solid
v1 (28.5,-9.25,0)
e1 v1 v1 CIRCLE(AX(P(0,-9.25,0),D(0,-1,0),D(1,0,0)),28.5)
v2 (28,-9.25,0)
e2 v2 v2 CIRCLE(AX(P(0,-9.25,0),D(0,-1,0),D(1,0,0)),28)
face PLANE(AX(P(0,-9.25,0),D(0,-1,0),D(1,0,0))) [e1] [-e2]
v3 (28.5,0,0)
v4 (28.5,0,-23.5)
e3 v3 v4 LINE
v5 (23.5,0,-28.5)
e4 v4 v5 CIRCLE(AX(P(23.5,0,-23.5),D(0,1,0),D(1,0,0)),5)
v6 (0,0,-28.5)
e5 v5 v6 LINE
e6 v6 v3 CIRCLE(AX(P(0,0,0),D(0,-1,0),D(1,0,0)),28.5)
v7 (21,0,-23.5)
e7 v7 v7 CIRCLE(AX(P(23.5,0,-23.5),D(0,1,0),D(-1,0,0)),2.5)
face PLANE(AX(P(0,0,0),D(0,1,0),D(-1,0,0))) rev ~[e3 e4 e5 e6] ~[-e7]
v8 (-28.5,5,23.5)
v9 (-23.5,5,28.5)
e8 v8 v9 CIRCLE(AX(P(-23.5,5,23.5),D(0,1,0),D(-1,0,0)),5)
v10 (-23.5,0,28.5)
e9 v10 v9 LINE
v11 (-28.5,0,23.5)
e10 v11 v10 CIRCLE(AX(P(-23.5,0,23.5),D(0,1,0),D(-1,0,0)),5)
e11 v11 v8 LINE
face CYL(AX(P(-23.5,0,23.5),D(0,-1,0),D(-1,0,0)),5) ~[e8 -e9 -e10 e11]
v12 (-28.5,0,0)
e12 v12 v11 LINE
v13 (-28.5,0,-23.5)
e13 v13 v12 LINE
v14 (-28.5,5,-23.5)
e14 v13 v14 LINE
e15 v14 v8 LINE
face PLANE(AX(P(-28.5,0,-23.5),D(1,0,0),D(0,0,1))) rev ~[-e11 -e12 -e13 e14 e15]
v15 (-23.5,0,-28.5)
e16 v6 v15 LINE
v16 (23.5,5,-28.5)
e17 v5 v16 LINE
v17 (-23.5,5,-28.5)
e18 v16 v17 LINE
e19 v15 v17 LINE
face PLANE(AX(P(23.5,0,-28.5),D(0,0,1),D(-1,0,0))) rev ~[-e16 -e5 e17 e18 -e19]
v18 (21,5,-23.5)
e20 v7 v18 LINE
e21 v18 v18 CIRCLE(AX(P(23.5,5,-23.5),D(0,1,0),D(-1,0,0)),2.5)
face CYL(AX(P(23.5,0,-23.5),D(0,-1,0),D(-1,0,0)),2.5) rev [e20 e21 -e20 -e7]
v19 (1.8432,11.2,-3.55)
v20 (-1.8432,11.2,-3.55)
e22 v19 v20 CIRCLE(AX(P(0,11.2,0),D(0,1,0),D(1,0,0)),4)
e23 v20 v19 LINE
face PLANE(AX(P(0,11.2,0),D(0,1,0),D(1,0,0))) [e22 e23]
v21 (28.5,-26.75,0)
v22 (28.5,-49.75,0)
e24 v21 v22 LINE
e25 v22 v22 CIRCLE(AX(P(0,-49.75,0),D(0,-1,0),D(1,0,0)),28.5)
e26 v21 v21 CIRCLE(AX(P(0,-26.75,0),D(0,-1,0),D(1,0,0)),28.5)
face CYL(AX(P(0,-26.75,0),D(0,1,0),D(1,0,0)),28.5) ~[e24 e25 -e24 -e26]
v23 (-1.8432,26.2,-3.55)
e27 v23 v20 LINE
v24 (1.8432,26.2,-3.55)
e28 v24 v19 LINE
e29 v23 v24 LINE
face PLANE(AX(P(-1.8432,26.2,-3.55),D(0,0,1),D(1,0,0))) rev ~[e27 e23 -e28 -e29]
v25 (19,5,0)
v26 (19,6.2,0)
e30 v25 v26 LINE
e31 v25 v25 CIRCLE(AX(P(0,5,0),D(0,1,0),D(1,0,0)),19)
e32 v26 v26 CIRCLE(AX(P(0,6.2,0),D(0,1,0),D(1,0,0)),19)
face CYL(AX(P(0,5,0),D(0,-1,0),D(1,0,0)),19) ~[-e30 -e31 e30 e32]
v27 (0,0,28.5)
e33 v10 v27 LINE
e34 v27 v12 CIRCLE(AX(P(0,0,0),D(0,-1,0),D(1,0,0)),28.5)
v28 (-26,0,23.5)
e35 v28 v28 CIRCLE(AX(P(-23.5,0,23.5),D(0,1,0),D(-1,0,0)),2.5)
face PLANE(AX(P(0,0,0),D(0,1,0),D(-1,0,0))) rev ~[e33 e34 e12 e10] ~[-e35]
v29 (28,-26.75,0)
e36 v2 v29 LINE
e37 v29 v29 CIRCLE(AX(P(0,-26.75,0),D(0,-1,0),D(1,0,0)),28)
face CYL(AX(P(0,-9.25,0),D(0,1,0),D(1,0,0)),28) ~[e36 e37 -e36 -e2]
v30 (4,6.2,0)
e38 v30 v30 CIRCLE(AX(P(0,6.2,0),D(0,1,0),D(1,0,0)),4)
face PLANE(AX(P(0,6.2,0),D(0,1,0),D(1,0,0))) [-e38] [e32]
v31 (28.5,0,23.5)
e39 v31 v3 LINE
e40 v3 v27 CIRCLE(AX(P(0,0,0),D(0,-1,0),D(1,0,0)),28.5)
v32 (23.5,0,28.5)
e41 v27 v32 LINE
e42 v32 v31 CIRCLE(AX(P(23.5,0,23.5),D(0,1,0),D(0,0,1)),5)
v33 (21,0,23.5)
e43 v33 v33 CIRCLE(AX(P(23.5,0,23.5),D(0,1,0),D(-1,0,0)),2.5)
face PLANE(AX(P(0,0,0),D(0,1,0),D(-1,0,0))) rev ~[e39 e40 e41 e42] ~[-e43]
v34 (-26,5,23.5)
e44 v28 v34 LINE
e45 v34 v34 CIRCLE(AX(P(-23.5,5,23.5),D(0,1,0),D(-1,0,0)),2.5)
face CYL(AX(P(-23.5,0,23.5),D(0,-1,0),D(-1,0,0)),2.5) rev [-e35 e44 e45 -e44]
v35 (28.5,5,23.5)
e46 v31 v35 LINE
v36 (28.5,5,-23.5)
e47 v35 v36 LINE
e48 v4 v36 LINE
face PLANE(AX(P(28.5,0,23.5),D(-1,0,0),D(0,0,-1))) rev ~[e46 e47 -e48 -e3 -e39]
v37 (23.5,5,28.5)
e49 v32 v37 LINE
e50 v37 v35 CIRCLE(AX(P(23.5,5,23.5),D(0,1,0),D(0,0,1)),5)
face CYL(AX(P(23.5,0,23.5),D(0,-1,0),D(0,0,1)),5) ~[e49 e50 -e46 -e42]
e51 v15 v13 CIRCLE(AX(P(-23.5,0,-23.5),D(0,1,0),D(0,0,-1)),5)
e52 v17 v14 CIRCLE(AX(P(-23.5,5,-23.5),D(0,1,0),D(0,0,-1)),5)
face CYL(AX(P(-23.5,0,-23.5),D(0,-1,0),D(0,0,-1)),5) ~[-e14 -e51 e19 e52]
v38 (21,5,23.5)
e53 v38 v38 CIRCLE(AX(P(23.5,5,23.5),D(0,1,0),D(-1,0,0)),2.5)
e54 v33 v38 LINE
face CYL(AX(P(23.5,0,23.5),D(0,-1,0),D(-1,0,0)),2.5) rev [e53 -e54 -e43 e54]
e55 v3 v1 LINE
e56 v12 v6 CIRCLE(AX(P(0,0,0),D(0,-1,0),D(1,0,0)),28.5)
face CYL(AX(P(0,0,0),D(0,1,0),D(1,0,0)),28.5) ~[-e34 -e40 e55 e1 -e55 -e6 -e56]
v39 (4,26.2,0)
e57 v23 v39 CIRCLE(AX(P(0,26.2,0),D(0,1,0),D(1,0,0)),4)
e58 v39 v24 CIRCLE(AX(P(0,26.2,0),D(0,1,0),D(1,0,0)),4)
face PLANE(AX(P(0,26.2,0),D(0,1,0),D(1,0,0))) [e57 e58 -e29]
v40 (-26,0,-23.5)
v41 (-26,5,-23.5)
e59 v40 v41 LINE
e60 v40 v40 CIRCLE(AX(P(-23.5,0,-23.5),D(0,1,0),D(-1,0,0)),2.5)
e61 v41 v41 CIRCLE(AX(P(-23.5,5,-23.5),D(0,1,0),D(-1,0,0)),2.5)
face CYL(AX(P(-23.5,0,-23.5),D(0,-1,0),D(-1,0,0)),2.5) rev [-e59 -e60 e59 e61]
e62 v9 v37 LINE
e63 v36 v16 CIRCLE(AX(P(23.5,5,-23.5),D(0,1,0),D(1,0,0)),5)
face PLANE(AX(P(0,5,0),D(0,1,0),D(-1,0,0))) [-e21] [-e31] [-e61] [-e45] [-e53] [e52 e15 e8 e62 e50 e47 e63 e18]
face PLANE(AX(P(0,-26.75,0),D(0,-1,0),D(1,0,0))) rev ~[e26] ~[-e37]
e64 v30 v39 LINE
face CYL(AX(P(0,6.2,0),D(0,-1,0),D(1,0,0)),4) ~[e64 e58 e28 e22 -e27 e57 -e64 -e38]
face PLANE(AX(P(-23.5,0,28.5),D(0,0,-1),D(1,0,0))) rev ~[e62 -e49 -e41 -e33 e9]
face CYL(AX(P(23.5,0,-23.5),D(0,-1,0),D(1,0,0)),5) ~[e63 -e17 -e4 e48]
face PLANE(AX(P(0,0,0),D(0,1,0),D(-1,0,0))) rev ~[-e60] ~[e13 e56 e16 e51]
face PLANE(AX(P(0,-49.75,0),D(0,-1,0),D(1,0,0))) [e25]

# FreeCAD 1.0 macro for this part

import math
import FreeCAD as App
import Part
import Sketcher
from FreeCAD import Vector

doc = App.newDocument("Part")
params = doc.addObject("Spreadsheet::Sheet", "Params")
for row, (alias, value) in enumerate([
    ("sketch1_diameter", "5 mm"),
    ("sketch1_radius", "5 mm"),
    ("sketch1_width", "47 mm"),
    ("pad1_length", "5 mm"),
    ("sketch2_diameter", "38 mm"),
    ("pad2_length", "1.2 mm"),
    ("sketch3_diameter", "8 mm"),
    ("pad3_length", "20 mm"),
    ("sketch4_radius", "4 mm"),
    ("pocket1_length", "15 mm"),
    ("sketch5_diameter", "57 mm"),
    ("pad4_length", "9.25 mm"),
    ("sketch6_diameter", "56 mm"),
    ("pad5_length", "17.5 mm"),
    ("sketch7_diameter", "57 mm"),
    ("pad6_length", "23 mm"),
], start=1):
    params.set(f"A{row}", alias)
    params.set(f"B{row}", "=" + value)
    params.setAlias(f"B{row}", alias)

body = doc.addObject("PartDesign::Body", "Body")

# Sketch on XZ plane
sketch1 = body.newObject("Sketcher::SketchObject", "Sketch")
sketch1.AttachmentSupport = (doc.getObject("XZ_Plane"), [""])
sketch1.MapMode = "FlatFace"
sketch1.addGeometry([
    Part.ArcOfCircle(Part.Circle(Vector(-23.5, 23.5, 0), Vector(0, 0, 1), 5), math.radians(90), math.radians(180)),  # 0
    Part.LineSegment(Vector(-23.5, 28.5, 0), Vector(23.5, 28.5, 0)),  # 1
    Part.ArcOfCircle(Part.Circle(Vector(23.5, 23.5, 0), Vector(0, 0, 1), 5), math.radians(0), math.radians(90)),  # 2
    Part.LineSegment(Vector(28.5, 23.5, 0), Vector(28.5, -23.5, 0)),  # 3
    Part.ArcOfCircle(Part.Circle(Vector(23.5, -23.5, 0), Vector(0, 0, 1), 5), math.radians(-90), math.radians(0)),  # 4
    Part.LineSegment(Vector(23.5, -28.5, 0), Vector(-23.5, -28.5, 0)),  # 5
    Part.ArcOfCircle(Part.Circle(Vector(-23.5, -23.5, 0), Vector(0, 0, 1), 5), math.radians(180), math.radians(270)),  # 6
    Part.LineSegment(Vector(-28.5, -23.5, 0), Vector(-28.5, 23.5, 0)),  # 7
    Part.Circle(Vector(23.5, -23.5, 0), Vector(0, 0, 1), 2.5),  # 8
    Part.Circle(Vector(-23.5, -23.5, 0), Vector(0, 0, 1), 2.5),  # 9
    Part.Circle(Vector(23.5, 23.5, 0), Vector(0, 0, 1), 2.5),  # 10
    Part.Circle(Vector(-23.5, 23.5, 0), Vector(0, 0, 1), 2.5),  # 11
], False)
sketch1.addConstraint([
    Sketcher.Constraint("Tangent", 0, 1, 1, 1),
    Sketcher.Constraint("Tangent", 1, 2, 2, 2),
    Sketcher.Constraint("Tangent", 2, 1, 3, 1),
    Sketcher.Constraint("Tangent", 3, 2, 4, 2),
    Sketcher.Constraint("Tangent", 4, 1, 5, 1),
    Sketcher.Constraint("Tangent", 5, 2, 6, 2),
    Sketcher.Constraint("Tangent", 6, 1, 7, 1),
    Sketcher.Constraint("Tangent", 7, 2, 0, 2),
    Sketcher.Constraint("Horizontal", 1),
    Sketcher.Constraint("Vertical", 3),
    Sketcher.Constraint("Horizontal", 5),
    Sketcher.Constraint("Vertical", 7),
    Sketcher.Constraint("Coincident", 8, 3, 4, 3),
    Sketcher.Constraint("Coincident", 9, 3, 6, 3),
    Sketcher.Constraint("Coincident", 10, 3, 2, 3),
    Sketcher.Constraint("Coincident", 11, 3, 0, 3),
    Sketcher.Constraint("Equal", 0, 2),
    Sketcher.Constraint("Equal", 2, 4),
    Sketcher.Constraint("Equal", 4, 6),
    Sketcher.Constraint("Equal", 8, 9),
    Sketcher.Constraint("Equal", 9, 10),
    Sketcher.Constraint("Equal", 10, 11),
    Sketcher.Constraint("Symmetric", 0, 3, 4, 3, -1, 1),
    Sketcher.Constraint("Equal", 5, 3),
    Sketcher.Constraint("Diameter", 8, 5.0),
    Sketcher.Constraint("Radius", 0, 5.0),
    Sketcher.Constraint("DistanceX", 1, 1, 1, 2, 47.0),
])
sketch1.setExpression("Constraints[24]", "Params.sketch1_diameter")
sketch1.setExpression("Constraints[25]", "Params.sketch1_radius")
sketch1.setExpression("Constraints[26]", "Params.sketch1_width")
pad1 = body.newObject("PartDesign::Pad", "Pad")
pad1.Profile = sketch1
pad1.setExpression("Length", "Params.pad1_length")
pad1.Reversed = True

# Sketch on XZ plane
sketch2 = body.newObject("Sketcher::SketchObject", "Sketch001")
sketch2.AttachmentSupport = (doc.getObject("XZ_Plane"), [""])
sketch2.MapMode = "FlatFace"
sketch2.AttachmentOffset = App.Placement(Vector(0, 0, -5), App.Rotation())
sketch2.addGeometry(Part.Circle(Vector(0, 0, 0), Vector(0, 0, 1), 19), False)
sketch2.addConstraint([
    Sketcher.Constraint("Coincident", 0, 3, -1, 1),
    Sketcher.Constraint("Diameter", 0, 38.0),
])
sketch2.setExpression("Constraints[1]", "Params.sketch2_diameter")
pad2 = body.newObject("PartDesign::Pad", "Pad001")
pad2.Profile = sketch2
pad2.setExpression("Length", "Params.pad2_length")
pad2.Reversed = True

# Sketch on XZ plane
sketch3 = body.newObject("Sketcher::SketchObject", "Sketch002")
sketch3.AttachmentSupport = (doc.getObject("XZ_Plane"), [""])
sketch3.MapMode = "FlatFace"
sketch3.AttachmentOffset = App.Placement(Vector(0, 0, -6.2), App.Rotation())
sketch3.addGeometry(Part.Circle(Vector(0, 0, 0), Vector(0, 0, 1), 4), False)
sketch3.addConstraint([
    Sketcher.Constraint("Coincident", 0, 3, -1, 1),
    Sketcher.Constraint("Diameter", 0, 8.0),
])
sketch3.setExpression("Constraints[1]", "Params.sketch3_diameter")
pad3 = body.newObject("PartDesign::Pad", "Pad002")
pad3.Profile = sketch3
pad3.setExpression("Length", "Params.pad3_length")
pad3.Reversed = True

# Sketch on XZ plane
sketch4 = body.newObject("Sketcher::SketchObject", "Sketch003")
sketch4.AttachmentSupport = (doc.getObject("XZ_Plane"), [""])
sketch4.MapMode = "FlatFace"
sketch4.AttachmentOffset = App.Placement(Vector(0, 0, -26.2), App.Rotation())
sketch4.addGeometry([
    Part.ArcOfCircle(Part.Circle(Vector(0, 0, 0), Vector(0, 0, 1), 4), math.radians(-117), math.radians(-63)),
    Part.LineSegment(Vector(1.8, -3.5, 0), Vector(-1.8, -3.5, 0)),
], False)
sketch4.addConstraint([
    Sketcher.Constraint("Coincident", 0, 1, 1, 2),
    Sketcher.Constraint("Coincident", 1, 1, 0, 2),
    Sketcher.Constraint("Horizontal", 1),
    Sketcher.Constraint("Coincident", 0, 3, -1, 1),
    Sketcher.Constraint("Radius", 0, 4.0),
    Sketcher.Constraint("DistanceY", 0, 1, -1, 1, 3.55),
])
sketch4.setExpression("Constraints[4]", "Params.sketch4_radius")
pocket1 = body.newObject("PartDesign::Pocket", "Pocket")
pocket1.Profile = sketch4
pocket1.setExpression("Length", "Params.pocket1_length")
pocket1.Reversed = True

# Sketch on XZ plane
sketch5 = body.newObject("Sketcher::SketchObject", "Sketch004")
sketch5.AttachmentSupport = (doc.getObject("XZ_Plane"), [""])
sketch5.MapMode = "FlatFace"
sketch5.addGeometry(Part.Circle(Vector(0, 0, 0), Vector(0, 0, 1), 28), False)
sketch5.addConstraint([
    Sketcher.Constraint("Coincident", 0, 3, -1, 1),
    Sketcher.Constraint("Diameter", 0, 57.0),
])
sketch5.setExpression("Constraints[1]", "Params.sketch5_diameter")
pad4 = body.newObject("PartDesign::Pad", "Pad003")
pad4.Profile = sketch5
pad4.setExpression("Length", "Params.pad4_length")

# Sketch on XZ plane
sketch6 = body.newObject("Sketcher::SketchObject", "Sketch005")
sketch6.AttachmentSupport = (doc.getObject("XZ_Plane"), [""])
sketch6.MapMode = "FlatFace"
sketch6.AttachmentOffset = App.Placement(Vector(0, 0, 9.25), App.Rotation())
sketch6.addGeometry(Part.Circle(Vector(0, 0, 0), Vector(0, 0, 1), 28), False)
sketch6.addConstraint([
    Sketcher.Constraint("Coincident", 0, 3, -1, 1),
    Sketcher.Constraint("Diameter", 0, 56.0),
])
sketch6.setExpression("Constraints[1]", "Params.sketch6_diameter")
pad5 = body.newObject("PartDesign::Pad", "Pad004")
pad5.Profile = sketch6
pad5.setExpression("Length", "Params.pad5_length")

# Sketch on XZ plane
sketch7 = body.newObject("Sketcher::SketchObject", "Sketch006")
sketch7.AttachmentSupport = (doc.getObject("XZ_Plane"), [""])
sketch7.MapMode = "FlatFace"
sketch7.AttachmentOffset = App.Placement(Vector(0, 0, 26.75), App.Rotation())
sketch7.addGeometry(Part.Circle(Vector(0, 0, 0), Vector(0, 0, 1), 28), False)
sketch7.addConstraint([
    Sketcher.Constraint("Coincident", 0, 3, -1, 1),
    Sketcher.Constraint("Diameter", 0, 57.0),
])
sketch7.setExpression("Constraints[1]", "Params.sketch7_diameter")
pad6 = body.newObject("PartDesign::Pad", "Pad005")
pad6.Profile = sketch7
pad6.setExpression("Length", "Params.pad6_length")

doc.recompute()
